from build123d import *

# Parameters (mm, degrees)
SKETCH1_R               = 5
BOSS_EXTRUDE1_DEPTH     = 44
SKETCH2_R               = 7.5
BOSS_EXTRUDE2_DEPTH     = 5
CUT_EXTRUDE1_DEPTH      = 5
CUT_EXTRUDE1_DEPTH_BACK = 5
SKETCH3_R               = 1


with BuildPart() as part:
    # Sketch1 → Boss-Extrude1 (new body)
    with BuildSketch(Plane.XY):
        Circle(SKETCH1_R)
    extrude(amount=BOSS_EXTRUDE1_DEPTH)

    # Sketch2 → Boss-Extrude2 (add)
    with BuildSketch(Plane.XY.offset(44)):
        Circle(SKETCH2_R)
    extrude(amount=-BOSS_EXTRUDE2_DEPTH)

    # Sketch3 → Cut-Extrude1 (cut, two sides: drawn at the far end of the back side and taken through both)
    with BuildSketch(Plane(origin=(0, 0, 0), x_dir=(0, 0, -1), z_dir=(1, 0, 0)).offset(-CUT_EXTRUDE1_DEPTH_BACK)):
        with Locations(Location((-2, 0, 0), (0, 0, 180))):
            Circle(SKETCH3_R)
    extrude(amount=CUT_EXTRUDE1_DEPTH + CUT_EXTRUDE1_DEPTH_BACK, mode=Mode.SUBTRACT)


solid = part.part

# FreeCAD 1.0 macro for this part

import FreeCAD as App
import Part
import Sketcher
from FreeCAD import Vector

doc = App.newDocument("Part")
body = doc.addObject("PartDesign::Body", "Body")

# Sketch on XY plane
sketch1 = doc.addObject("Sketcher::SketchObject", "Sketch")
body.addObject(sketch1)
sketch1.AttachmentSupport = (doc.XY_Plane, [""])
sketch1.MapMode = "FlatFace"
sketch1.addGeometry(Part.Circle(Vector(0, 0, 0), Vector(0, 0, 1), 5), False)
sketch1.addConstraint([
    Sketcher.Constraint("Coincident", 0, 3, -1, 1),
    Sketcher.Constraint("Diameter", 0, 10.0),
])
pad1 = doc.addObject("PartDesign::Pad", "Pad")
body.addObject(pad1)
pad1.Profile = sketch1
pad1.Length = 44

# Sketch on XY plane
sketch2 = doc.addObject("Sketcher::SketchObject", "Sketch001")
body.addObject(sketch2)
sketch2.AttachmentSupport = (doc.XY_Plane, [""])
sketch2.MapMode = "FlatFace"
sketch2.AttachmentOffset = App.Placement(Vector(0, 0, 44), App.Rotation())
sketch2.addGeometry(Part.Circle(Vector(0, 0, 0), Vector(0, 0, 1), 8), False)
sketch2.addConstraint([
    Sketcher.Constraint("Coincident", 0, 3, -1, 1),
    Sketcher.Constraint("Diameter", 0, 15.0),
])
pad2 = doc.addObject("PartDesign::Pad", "Pad001")
body.addObject(pad2)
pad2.Profile = sketch2
pad2.Length = 5
pad2.Reversed = True

# Sketch on YZ plane
sketch3 = doc.addObject("Sketcher::SketchObject", "Sketch002")
body.addObject(sketch3)
sketch3.AttachmentSupport = (doc.YZ_Plane, [""])
sketch3.MapMode = "FlatFace"
sketch3.addGeometry(Part.Circle(Vector(0, 2, 0), Vector(0, 0, 1), 1), False)
sketch3.addConstraint([
    Sketcher.Constraint("PointOnObject", 0, 3, -2),
    Sketcher.Constraint("Diameter", 0, 2.0),
    Sketcher.Constraint("DistanceY", -1, 1, 0, 3, 2.0),
])
pocket1 = doc.addObject("PartDesign::Pocket", "Pocket")
body.addObject(pocket1)
pocket1.Profile = sketch3
pocket1.Type = "ThroughAll"
pocket1.Midplane = True

doc.recompute()
